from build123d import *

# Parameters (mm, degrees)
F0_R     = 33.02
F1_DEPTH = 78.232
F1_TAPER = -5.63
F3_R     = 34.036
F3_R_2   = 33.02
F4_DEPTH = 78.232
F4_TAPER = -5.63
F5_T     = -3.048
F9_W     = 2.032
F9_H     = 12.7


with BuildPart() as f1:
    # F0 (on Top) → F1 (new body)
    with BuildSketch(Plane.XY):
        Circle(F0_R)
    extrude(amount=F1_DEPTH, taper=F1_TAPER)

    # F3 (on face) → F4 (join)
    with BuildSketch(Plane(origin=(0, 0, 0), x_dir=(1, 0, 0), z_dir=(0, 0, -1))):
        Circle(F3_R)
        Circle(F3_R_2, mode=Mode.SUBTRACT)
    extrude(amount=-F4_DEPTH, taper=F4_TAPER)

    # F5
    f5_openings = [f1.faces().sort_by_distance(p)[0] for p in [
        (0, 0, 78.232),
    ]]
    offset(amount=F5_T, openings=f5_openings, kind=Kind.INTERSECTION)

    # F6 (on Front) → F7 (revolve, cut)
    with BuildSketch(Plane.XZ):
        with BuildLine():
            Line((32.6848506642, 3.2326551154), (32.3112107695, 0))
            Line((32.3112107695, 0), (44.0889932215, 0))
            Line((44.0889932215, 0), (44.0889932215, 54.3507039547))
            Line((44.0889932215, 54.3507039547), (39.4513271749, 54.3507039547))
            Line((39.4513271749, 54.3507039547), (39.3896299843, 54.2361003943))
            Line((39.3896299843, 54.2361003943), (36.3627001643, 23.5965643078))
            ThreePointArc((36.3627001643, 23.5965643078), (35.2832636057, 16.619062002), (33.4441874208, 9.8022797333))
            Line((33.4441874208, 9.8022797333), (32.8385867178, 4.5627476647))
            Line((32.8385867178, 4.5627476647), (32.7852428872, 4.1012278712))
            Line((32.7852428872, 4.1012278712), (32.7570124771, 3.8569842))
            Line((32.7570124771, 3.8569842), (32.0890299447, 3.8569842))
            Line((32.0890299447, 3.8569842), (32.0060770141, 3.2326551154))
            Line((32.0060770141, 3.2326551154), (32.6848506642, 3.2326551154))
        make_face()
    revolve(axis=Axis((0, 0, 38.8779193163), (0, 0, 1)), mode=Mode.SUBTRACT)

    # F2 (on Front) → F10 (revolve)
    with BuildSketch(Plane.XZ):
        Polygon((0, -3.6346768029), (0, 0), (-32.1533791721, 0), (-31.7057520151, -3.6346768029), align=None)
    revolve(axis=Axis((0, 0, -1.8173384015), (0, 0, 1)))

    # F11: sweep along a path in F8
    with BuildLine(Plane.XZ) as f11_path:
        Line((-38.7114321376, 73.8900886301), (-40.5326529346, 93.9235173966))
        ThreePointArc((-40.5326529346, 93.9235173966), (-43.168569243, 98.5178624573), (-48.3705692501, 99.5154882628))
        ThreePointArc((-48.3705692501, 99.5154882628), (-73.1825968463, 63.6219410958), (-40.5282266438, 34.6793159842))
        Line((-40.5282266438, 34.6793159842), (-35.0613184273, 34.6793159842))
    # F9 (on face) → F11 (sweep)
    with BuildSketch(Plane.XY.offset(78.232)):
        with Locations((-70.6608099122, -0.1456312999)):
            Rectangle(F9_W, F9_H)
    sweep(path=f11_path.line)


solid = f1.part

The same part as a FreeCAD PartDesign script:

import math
import FreeCAD as App
import Part
import Sketcher

V = App.Vector
Q = App.Units.Quantity


def faces_at(feature, points):
    """Names of the faces that lie closest to the given points."""
    faces = feature.Shape.Faces
    near = lambda p: min(range(len(faces)), key=lambda i: faces[i].distToShape(Part.Vertex(*p))[0])
    return sorted({f"Face{near(p) + 1}" for p in points})

doc = App.newDocument("Part")
body = doc.addObject("PartDesign::Body", "Body")

# Sketch on XY plane
sketch1 = body.newObject("Sketcher::SketchObject", "Sketch")
sketch1.AttachmentSupport = (doc.getObject("XY_Plane"), [""])
sketch1.MapMode = "FlatFace"
sketch1.addGeometry(Part.Circle(V(0, 0, 0), V(0, 0, 1), 33.02), False)
sketch1.addConstraint([
    Sketcher.Constraint("Coincident", 0, 3, -1, 1),
    Sketcher.Constraint("Diameter", 0, Q("2.6 in")),
])
pad1 = body.newObject("PartDesign::Pad", "Pad")
pad1.Profile = sketch1
pad1.Length = Q("3.08 in")
pad1.TaperAngle = 5.63

# Sketch on XY plane
sketch2 = body.newObject("Sketcher::SketchObject", "Sketch001")
sketch2.AttachmentSupport = (doc.getObject("XY_Plane"), [""])
sketch2.MapMode = "FlatFace"
sketch2.addGeometry([
    Part.Circle(V(0, 0, 0), V(0, 0, 1), 34.036),
    Part.Circle(V(0, 0, 0), V(0, 0, 1), 33.02),
], False)
sketch2.addConstraint([
    Sketcher.Constraint("Coincident", 0, 3, -1, 1),
    Sketcher.Constraint("Coincident", 1, 3, -1, 1),
    Sketcher.Constraint("Diameter", 1, Q("2.6 in")),
    Sketcher.Constraint("Diameter", 0, Q("2.68 in")),
])
pad2 = body.newObject("PartDesign::Pad", "Pad001")
pad2.Profile = sketch2
pad2.Length = Q("3.08 in")
pad2.TaperAngle = 5.63
doc.recompute()

thickness = body.newObject("PartDesign::Thickness", "Thickness")
thickness.Base = (pad2, faces_at(pad2, [(0, 0, 78.232)]))
thickness.Value = Q("0.12 in")
thickness.Reversed = True
thickness.Join = "Intersection"

# Sketch on XZ plane
sketch3 = body.newObject("Sketcher::SketchObject", "Sketch002")
sketch3.AttachmentSupport = (doc.getObject("XZ_Plane"), [""])
sketch3.MapMode = "FlatFace"
sketch3.addGeometry([
    Part.LineSegment(V(32.684851, 3.232655, 0), V(32.311211, 0, 0)),  # 0
    Part.LineSegment(V(32.311211, 0, 0), V(44.088993, 0, 0)),  # 1
    Part.LineSegment(V(44.088993, 0, 0), V(44.088993, 54.350704, 0)),  # 2
    Part.LineSegment(V(44.088993, 54.350704, 0), V(39.451327, 54.350704, 0)),  # 3
    Part.LineSegment(V(39.451327, 54.350704, 0), V(39.38963, 54.2361, 0)),  # 4
    Part.LineSegment(V(39.38963, 54.2361, 0), V(36.3627, 23.596564, 0)),  # 5
    Part.ArcOfCircle(Part.Circle(V(-27.529198, 29.908549, 0), V(0, 0, 1), 64.202927), math.radians(-18.250222), math.radians(-5.642036)),  # 6
    Part.LineSegment(V(33.444187, 9.80228, 0), V(32.838587, 4.562748, 0)),  # 7
    Part.LineSegment(V(32.838587, 4.562748, 0), V(32.785243, 4.101228, 0)),  # 8
    Part.LineSegment(V(32.785243, 4.101228, 0), V(32.757012, 3.856984, 0)),  # 9
    Part.LineSegment(V(32.757012, 3.856984, 0), V(32.08903, 3.856984, 0)),  # 10
    Part.LineSegment(V(32.08903, 3.856984, 0), V(32.006077, 3.232655, 0)),  # 11
    Part.LineSegment(V(32.006077, 3.232655, 0), V(32.684851, 3.232655, 0)),  # 12
], False)
sketch3.addConstraint([
    Sketcher.Constraint("Coincident", 0, 2, 1, 1),
    Sketcher.Constraint("Coincident", 1, 2, 2, 1),
    Sketcher.Constraint("Coincident", 2, 2, 3, 1),
    Sketcher.Constraint("Coincident", 3, 2, 4, 1),
    Sketcher.Constraint("Coincident", 4, 2, 5, 1),
    Sketcher.Constraint("Coincident", 5, 2, 6, 2),
    Sketcher.Constraint("Coincident", 6, 1, 7, 1),
    Sketcher.Constraint("Coincident", 7, 2, 8, 1),
    Sketcher.Constraint("Coincident", 8, 2, 9, 1),
    Sketcher.Constraint("Coincident", 9, 2, 10, 1),
    Sketcher.Constraint("Coincident", 10, 2, 11, 1),
    Sketcher.Constraint("Coincident", 11, 2, 12, 1),
    Sketcher.Constraint("Coincident", 12, 2, 0, 1),
    Sketcher.Constraint("Horizontal", 1),
    Sketcher.Constraint("Vertical", 2),
    Sketcher.Constraint("Horizontal", 3),
    Sketcher.Constraint("Horizontal", 10),
    Sketcher.Constraint("Horizontal", 12),
    Sketcher.Constraint("PointOnObject", 0, 2, -1),
    Sketcher.Constraint("Radius", 6, Q("64.202927 mm")),
    Sketcher.Constraint("DistanceX", 8, 2, 7, 2, Q("0.0021002 in")),
    Sketcher.Constraint("DistanceY", -1, 1, 4, 2, Q("54.2361 mm")),
    Sketcher.Constraint("DistanceX", -1, 1, 5, 2, Q("36.3627 mm")),
    Sketcher.Constraint("DistanceX", 7, 2, 6, 1, Q("0.605601 mm")),
    Sketcher.Constraint("DistanceX", 0, 2, 9, 2, Q("0.445802 mm")),
    Sketcher.Constraint("Distance", 5, Q("30.788691 mm")),
    Sketcher.Constraint("Distance", 9, Q("0.24587 mm")),
    Sketcher.Constraint("DistanceX", 1, 1, 1, 2, Q("11.777782 mm")),
    Sketcher.Constraint("DistanceX", 3, 2, 3, 1, Q("4.637666 mm")),
    Sketcher.Constraint("DistanceX", 10, 2, 10, 1, Q("0.667983 mm")),
    Sketcher.Constraint("DistanceX", 12, 1, 12, 2, Q("0.678774 mm")),
    Sketcher.Constraint("DistanceY", 2, 1, 2, 2, Q("54.350704 mm")),
    Sketcher.Constraint("DistanceY", -1, 1, 6, 3, Q("29.908549 mm")),
    Sketcher.Constraint("DistanceX", -1, 1, 0, 2, Q("32.311211 mm")),
    Sketcher.Constraint("DistanceX", -1, 1, 4, 2, Q("39.38963 mm")),
    Sketcher.Constraint("DistanceY", -1, 1, 6, 1, Q("9.80228 mm")),
    Sketcher.Constraint("DistanceX", -1, 1, 12, 2, Q("32.684851 mm")),
    Sketcher.Constraint("DistanceY", 8, 2, 7, 2, Q("0.46152 mm")),
    Sketcher.Constraint("DistanceY", 8, 2, 6, 1, Q("5.701052 mm")),
    Sketcher.Constraint("DistanceY", 11, 2, 10, 2, Q("0.624329 mm")),
])
groove = body.newObject("PartDesign::Groove", "Groove")
groove.Profile = sketch3
groove.ReferenceAxis = (sketch3, ["V_Axis"])
groove.Angle = 360

# Sketch on XZ plane
sketch4 = body.newObject("Sketcher::SketchObject", "Sketch003")
sketch4.AttachmentSupport = (doc.getObject("XZ_Plane"), [""])
sketch4.MapMode = "FlatFace"
sketch4.addGeometry([
    Part.LineSegment(V(0, -3.634677, 0), V(0, 0, 0)),
    Part.LineSegment(V(0, 0, 0), V(-32.153379, 0, 0)),
    Part.LineSegment(V(-32.153379, 0, 0), V(-31.705752, -3.634677, 0)),
    Part.LineSegment(V(-31.705752, -3.634677, 0), V(0, -3.634677, 0)),
], False)
sketch4.addConstraint([
    Sketcher.Constraint("Coincident", 0, 2, 1, 1),
    Sketcher.Constraint("Coincident", 1, 2, 2, 1),
    Sketcher.Constraint("Coincident", 2, 2, 3, 1),
    Sketcher.Constraint("Coincident", 3, 2, 0, 1),
    Sketcher.Constraint("Vertical", 0),
    Sketcher.Constraint("Horizontal", 1),
    Sketcher.Constraint("Horizontal", 3),
    Sketcher.Constraint("Coincident", 0, 2, -1, 1),
    Sketcher.Constraint("DistanceX", 1, 2, 1, 1, Q("32.153379 mm")),
    Sketcher.Constraint("DistanceX", 3, 1, 3, 2, Q("31.705752 mm")),
    Sketcher.Constraint("DistanceY", 0, 1, 0, 2, Q("3.634677 mm")),
])
revolution = body.newObject("PartDesign::Revolution", "Revolution")
revolution.Profile = sketch4
revolution.ReferenceAxis = (sketch4, ["V_Axis"])
revolution.Angle = 360

# Sketch on XY plane
sketch5 = body.newObject("Sketcher::SketchObject", "Sketch004")
sketch5.AttachmentSupport = (doc.getObject("XY_Plane"), [""])
sketch5.MapMode = "FlatFace"
sketch5.AttachmentOffset = App.Placement(V(0, 0, 3.08 * 25.4), App.Rotation())
sketch5.addGeometry([
    Part.LineSegment(V(-71.67681, 6.204369, 0), V(-71.67681, -6.495631, 0)),
    Part.LineSegment(V(-71.67681, -6.495631, 0), V(-69.64481, -6.495631, 0)),
    Part.LineSegment(V(-69.64481, -6.495631, 0), V(-69.64481, 6.204369, 0)),
    Part.LineSegment(V(-69.64481, 6.204369, 0), V(-71.67681, 6.204369, 0)),
], False)
sketch5.addConstraint([
    Sketcher.Constraint("Coincident", 0, 2, 1, 1),
    Sketcher.Constraint("Coincident", 1, 2, 2, 1),
    Sketcher.Constraint("Coincident", 2, 2, 3, 1),
    Sketcher.Constraint("Coincident", 3, 2, 0, 1),
    Sketcher.Constraint("Vertical", 0),
    Sketcher.Constraint("Horizontal", 1),
    Sketcher.Constraint("Vertical", 2),
    Sketcher.Constraint("Horizontal", 3),
    Sketcher.Constraint("DistanceY", 0, 2, 0, 1, Q("0.5 in")),
    Sketcher.Constraint("DistanceX", 1, 1, 1, 2, Q("0.08 in")),
    Sketcher.Constraint("DistanceX", 0, 2, -1, 1, Q("71.67681 mm")),
    Sketcher.Constraint("DistanceY", 0, 2, -1, 1, Q("6.495631 mm")),
])

# Sketch on XZ plane
sketch6 = body.newObject("Sketcher::SketchObject", "Sketch005")
sketch6.AttachmentSupport = (doc.getObject("XZ_Plane"), [""])
sketch6.MapMode = "FlatFace"
sketch6.addGeometry([
    Part.LineSegment(V(-38.711432, 73.890089, 0), V(-40.532653, 93.923517, 0)),
    Part.ArcOfCircle(Part.Circle(V(-46.856575, 93.348615, 0), V(0, 0, 1), 6.35), math.radians(5.194429), math.radians(103.793561)),
    Part.ArcOfCircle(Part.Circle(V(-40.528227, 67.571692, 0), V(0, 0, 1), 32.892376), math.radians(103.793561), math.radians(270)),
    Part.LineSegment(V(-40.528227, 34.679316, 0), V(-35.061318, 34.679316, 0)),
], False)
sketch6.addConstraint([
    Sketcher.Constraint("Tangent", 0, 2, 1, 1),
    Sketcher.Constraint("Tangent", 1, 2, 2, 1),
    Sketcher.Constraint("Tangent", 2, 2, 3, 1),
    Sketcher.Constraint("Horizontal", 3),
    Sketcher.Constraint("Radius", 1, Q("0.25 in")),
    Sketcher.Constraint("Radius", 2, Q("32.892376 mm")),
    Sketcher.Constraint("DistanceX", 3, 1, 3, 2, Q("5.466908 mm")),
    Sketcher.Constraint("DistanceY", 1, 3, 0, 2, Q("0.574902 mm")),
    Sketcher.Constraint("DistanceY", 0, 1, 1, 2, Q("25.6254 mm")),
    Sketcher.Constraint("DistanceY", 2, 2, 1, 3, Q("58.669299 mm")),
    Sketcher.Constraint("DistanceY", -1, 1, 0, 1, Q("73.890089 mm")),
    Sketcher.Constraint("DistanceX", 1, 2, -1, 1, Q("48.370569 mm")),
])
doc.recompute()

additivepipe = body.newObject("PartDesign::AdditivePipe", "AdditivePipe")
additivepipe.Profile = sketch5
additivepipe.Spine = (sketch6, ["Edge1", "Edge2", "Edge3", "Edge4"])

doc.recompute()
